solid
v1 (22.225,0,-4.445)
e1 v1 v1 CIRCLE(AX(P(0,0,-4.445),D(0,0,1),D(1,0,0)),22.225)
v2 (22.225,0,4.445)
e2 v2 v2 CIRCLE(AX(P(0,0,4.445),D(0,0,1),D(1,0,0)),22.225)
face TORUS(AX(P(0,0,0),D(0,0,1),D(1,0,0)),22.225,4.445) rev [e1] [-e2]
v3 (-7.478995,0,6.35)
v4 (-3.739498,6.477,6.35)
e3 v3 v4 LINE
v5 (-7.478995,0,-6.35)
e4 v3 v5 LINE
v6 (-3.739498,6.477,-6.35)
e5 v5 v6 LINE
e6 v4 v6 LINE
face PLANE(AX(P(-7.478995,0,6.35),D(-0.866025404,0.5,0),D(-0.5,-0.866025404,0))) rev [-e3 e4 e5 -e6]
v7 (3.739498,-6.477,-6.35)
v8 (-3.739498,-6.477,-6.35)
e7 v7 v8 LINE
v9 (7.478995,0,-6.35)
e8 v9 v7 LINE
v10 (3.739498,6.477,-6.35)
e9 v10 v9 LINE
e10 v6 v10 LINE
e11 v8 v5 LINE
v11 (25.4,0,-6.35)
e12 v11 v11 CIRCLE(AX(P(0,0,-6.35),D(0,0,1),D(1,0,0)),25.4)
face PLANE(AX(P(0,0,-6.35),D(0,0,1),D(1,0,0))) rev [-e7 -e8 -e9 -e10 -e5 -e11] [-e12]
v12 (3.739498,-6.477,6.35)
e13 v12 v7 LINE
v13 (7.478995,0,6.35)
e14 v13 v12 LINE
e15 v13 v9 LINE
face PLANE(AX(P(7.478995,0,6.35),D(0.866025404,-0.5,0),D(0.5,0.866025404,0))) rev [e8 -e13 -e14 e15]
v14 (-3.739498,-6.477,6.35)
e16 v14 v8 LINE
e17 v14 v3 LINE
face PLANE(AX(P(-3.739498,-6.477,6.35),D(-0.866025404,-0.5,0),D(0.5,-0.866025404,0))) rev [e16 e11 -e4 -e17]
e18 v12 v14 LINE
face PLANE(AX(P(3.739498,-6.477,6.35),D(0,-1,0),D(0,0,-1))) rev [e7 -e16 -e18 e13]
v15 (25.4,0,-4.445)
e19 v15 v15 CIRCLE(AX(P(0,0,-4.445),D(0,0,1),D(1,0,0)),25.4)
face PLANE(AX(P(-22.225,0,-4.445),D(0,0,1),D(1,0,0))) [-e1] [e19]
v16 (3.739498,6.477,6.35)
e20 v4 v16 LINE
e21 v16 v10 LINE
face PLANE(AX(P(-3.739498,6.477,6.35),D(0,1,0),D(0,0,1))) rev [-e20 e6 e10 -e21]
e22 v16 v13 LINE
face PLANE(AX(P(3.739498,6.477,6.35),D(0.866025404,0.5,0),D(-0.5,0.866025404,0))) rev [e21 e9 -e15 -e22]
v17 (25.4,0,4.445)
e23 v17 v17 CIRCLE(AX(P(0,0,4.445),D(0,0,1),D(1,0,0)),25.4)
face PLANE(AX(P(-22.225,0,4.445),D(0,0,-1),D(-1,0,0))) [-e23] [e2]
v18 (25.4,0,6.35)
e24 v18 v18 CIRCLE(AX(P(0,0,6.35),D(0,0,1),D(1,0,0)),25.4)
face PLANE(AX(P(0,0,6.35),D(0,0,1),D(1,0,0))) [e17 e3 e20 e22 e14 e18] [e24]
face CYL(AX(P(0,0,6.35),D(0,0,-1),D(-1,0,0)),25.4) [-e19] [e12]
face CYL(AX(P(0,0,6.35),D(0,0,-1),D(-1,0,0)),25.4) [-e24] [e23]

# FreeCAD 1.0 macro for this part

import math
import FreeCAD as App
import Part
import Sketcher

V = App.Vector
Q = App.Units.Quantity

doc = App.newDocument("Part")
body = doc.addObject("PartDesign::Body", "Body")

# Sketch on XY plane
sketch1 = doc.addObject("Sketcher::SketchObject", "Sketch")
body.addObject(sketch1)
sketch1.AttachmentSupport = (doc.XY_Plane, [""])
sketch1.MapMode = "FlatFace"
sketch1.addGeometry(Part.Circle(V(0, 0, 0), V(0, 0, 1), 25), False)
sketch1.addConstraint(Sketcher.Constraint("Coincident", 0, 3, -1, 1))
sketch1.addConstraint(Sketcher.Constraint("Diameter", 0, Q("2 in")))
pad1 = doc.addObject("PartDesign::Pad", "Pad")
body.addObject(pad1)
pad1.Profile = sketch1
pad1.Length = Q("0.5 in")
pad1.Midplane = True

# Sketch on XZ plane
sketch2 = doc.addObject("Sketcher::SketchObject", "Sketch001")
body.addObject(sketch2)
sketch2.AttachmentSupport = (doc.XZ_Plane, [""])
sketch2.MapMode = "FlatFace"
sketch2.addGeometry(Part.LineSegment(V(-25.4, -4.4, 0), V(-25.4, 4.4, 0)), False)
sketch2.addGeometry(Part.LineSegment(V(-25.4, 4.4, 0), V(-22.2, 4.4, 0)), False)
sketch2.addGeometry(Part.ArcOfCircle(Part.Circle(V(-22.2, 0, 0), V(0, 0, 1), 4.4), math.radians(-90), math.radians(90)), False)
sketch2.addGeometry(Part.LineSegment(V(-22.2, -4.4, 0), V(-25.4, -4.4, 0)), False)
sketch2.addConstraint(Sketcher.Constraint("Coincident", 0, 2, 1, 1))
sketch2.addConstraint(Sketcher.Constraint("Tangent", 1, 2, 2, 2))
sketch2.addConstraint(Sketcher.Constraint("Tangent", 2, 1, 3, 1))
sketch2.addConstraint(Sketcher.Constraint("Coincident", 3, 2, 0, 1))
sketch2.addConstraint(Sketcher.Constraint("Vertical", 0))
sketch2.addConstraint(Sketcher.Constraint("Horizontal", 1))
sketch2.addConstraint(Sketcher.Constraint("Horizontal", 3))
sketch2.addConstraint(Sketcher.Constraint("PointOnObject", 2, 3, -1))
sketch2.addConstraint(Sketcher.Constraint("DistanceX", 0, 2, -1, 1, Q("1 in")))
sketch2.addConstraint(Sketcher.Constraint("Radius", 2, Q("0.175 in")))
sketch2.addConstraint(Sketcher.Constraint("DistanceX", 1, 1, 1, 2, Q("0.125 in")))
groove = doc.addObject("PartDesign::Groove", "Groove")
body.addObject(groove)
groove.Profile = sketch2
groove.ReferenceAxis = (sketch2, ["V_Axis"])
groove.Angle = 360

# Sketch on XY plane
sketch3 = doc.addObject("Sketcher::SketchObject", "Sketch002")
body.addObject(sketch3)
sketch3.AttachmentSupport = (doc.XY_Plane, [""])
sketch3.MapMode = "FlatFace"
sketch3.AttachmentOffset = App.Placement(V(0, 0, -0.25 * 25.4), App.Rotation())
sketch3.addGeometry(Part.LineSegment(V(-7, 0, 0), V(-4, 6, 0)), False)
sketch3.addGeometry(Part.LineSegment(V(-4, 6, 0), V(4, 6, 0)), False)
sketch3.addGeometry(Part.LineSegment(V(4, 6, 0), V(7, 0, 0)), False)
sketch3.addGeometry(Part.LineSegment(V(7, 0, 0), V(4, -6, 0)), False)
sketch3.addGeometry(Part.LineSegment(V(4, -6, 0), V(-4, -6, 0)), False)
sketch3.addGeometry(Part.LineSegment(V(-4, -6, 0), V(-7, 0, 0)), False)
sketch3.addConstraint(Sketcher.Constraint("Coincident", 0, 2, 1, 1))
sketch3.addConstraint(Sketcher.Constraint("Coincident", 1, 2, 2, 1))
sketch3.addConstraint(Sketcher.Constraint("Coincident", 2, 2, 3, 1))
sketch3.addConstraint(Sketcher.Constraint("Coincident", 3, 2, 4, 1))
sketch3.addConstraint(Sketcher.Constraint("Coincident", 4, 2, 5, 1))
sketch3.addConstraint(Sketcher.Constraint("Coincident", 5, 2, 0, 1))
sketch3.addConstraint(Sketcher.Constraint("Horizontal", 1))
sketch3.addConstraint(Sketcher.Constraint("Horizontal", 4))
sketch3.addConstraint(Sketcher.Constraint("Symmetric", 0, 2, 3, 2, -1, 1))
sketch3.addConstraint(Sketcher.Constraint("Symmetric", 2, 2, 5, 2, -1, 1))
sketch3.addConstraint(Sketcher.Constraint("PointOnObject", 2, 2, -1))
sketch3.addConstraint(Sketcher.Constraint("Parallel", 2, 5))
sketch3.addConstraint(Sketcher.Constraint("Vertical", 1, 2, 3, 2))
sketch3.addConstraint(Sketcher.Constraint("Angle", 0, Q("60 deg")))
sketch3.addConstraint(Sketcher.Constraint("DistanceY", 3, 2, 1, 2, Q("0.51 in")))
sketch3.addConstraint(Sketcher.Constraint("DistanceX", 1, 1, 1, 2, 7.478995))
pocket1 = doc.addObject("PartDesign::Pocket", "Pocket")
body.addObject(pocket1)
pocket1.Profile = sketch3
pocket1.Type = "ThroughAll"
pocket1.Reversed = True

doc.recompute()
